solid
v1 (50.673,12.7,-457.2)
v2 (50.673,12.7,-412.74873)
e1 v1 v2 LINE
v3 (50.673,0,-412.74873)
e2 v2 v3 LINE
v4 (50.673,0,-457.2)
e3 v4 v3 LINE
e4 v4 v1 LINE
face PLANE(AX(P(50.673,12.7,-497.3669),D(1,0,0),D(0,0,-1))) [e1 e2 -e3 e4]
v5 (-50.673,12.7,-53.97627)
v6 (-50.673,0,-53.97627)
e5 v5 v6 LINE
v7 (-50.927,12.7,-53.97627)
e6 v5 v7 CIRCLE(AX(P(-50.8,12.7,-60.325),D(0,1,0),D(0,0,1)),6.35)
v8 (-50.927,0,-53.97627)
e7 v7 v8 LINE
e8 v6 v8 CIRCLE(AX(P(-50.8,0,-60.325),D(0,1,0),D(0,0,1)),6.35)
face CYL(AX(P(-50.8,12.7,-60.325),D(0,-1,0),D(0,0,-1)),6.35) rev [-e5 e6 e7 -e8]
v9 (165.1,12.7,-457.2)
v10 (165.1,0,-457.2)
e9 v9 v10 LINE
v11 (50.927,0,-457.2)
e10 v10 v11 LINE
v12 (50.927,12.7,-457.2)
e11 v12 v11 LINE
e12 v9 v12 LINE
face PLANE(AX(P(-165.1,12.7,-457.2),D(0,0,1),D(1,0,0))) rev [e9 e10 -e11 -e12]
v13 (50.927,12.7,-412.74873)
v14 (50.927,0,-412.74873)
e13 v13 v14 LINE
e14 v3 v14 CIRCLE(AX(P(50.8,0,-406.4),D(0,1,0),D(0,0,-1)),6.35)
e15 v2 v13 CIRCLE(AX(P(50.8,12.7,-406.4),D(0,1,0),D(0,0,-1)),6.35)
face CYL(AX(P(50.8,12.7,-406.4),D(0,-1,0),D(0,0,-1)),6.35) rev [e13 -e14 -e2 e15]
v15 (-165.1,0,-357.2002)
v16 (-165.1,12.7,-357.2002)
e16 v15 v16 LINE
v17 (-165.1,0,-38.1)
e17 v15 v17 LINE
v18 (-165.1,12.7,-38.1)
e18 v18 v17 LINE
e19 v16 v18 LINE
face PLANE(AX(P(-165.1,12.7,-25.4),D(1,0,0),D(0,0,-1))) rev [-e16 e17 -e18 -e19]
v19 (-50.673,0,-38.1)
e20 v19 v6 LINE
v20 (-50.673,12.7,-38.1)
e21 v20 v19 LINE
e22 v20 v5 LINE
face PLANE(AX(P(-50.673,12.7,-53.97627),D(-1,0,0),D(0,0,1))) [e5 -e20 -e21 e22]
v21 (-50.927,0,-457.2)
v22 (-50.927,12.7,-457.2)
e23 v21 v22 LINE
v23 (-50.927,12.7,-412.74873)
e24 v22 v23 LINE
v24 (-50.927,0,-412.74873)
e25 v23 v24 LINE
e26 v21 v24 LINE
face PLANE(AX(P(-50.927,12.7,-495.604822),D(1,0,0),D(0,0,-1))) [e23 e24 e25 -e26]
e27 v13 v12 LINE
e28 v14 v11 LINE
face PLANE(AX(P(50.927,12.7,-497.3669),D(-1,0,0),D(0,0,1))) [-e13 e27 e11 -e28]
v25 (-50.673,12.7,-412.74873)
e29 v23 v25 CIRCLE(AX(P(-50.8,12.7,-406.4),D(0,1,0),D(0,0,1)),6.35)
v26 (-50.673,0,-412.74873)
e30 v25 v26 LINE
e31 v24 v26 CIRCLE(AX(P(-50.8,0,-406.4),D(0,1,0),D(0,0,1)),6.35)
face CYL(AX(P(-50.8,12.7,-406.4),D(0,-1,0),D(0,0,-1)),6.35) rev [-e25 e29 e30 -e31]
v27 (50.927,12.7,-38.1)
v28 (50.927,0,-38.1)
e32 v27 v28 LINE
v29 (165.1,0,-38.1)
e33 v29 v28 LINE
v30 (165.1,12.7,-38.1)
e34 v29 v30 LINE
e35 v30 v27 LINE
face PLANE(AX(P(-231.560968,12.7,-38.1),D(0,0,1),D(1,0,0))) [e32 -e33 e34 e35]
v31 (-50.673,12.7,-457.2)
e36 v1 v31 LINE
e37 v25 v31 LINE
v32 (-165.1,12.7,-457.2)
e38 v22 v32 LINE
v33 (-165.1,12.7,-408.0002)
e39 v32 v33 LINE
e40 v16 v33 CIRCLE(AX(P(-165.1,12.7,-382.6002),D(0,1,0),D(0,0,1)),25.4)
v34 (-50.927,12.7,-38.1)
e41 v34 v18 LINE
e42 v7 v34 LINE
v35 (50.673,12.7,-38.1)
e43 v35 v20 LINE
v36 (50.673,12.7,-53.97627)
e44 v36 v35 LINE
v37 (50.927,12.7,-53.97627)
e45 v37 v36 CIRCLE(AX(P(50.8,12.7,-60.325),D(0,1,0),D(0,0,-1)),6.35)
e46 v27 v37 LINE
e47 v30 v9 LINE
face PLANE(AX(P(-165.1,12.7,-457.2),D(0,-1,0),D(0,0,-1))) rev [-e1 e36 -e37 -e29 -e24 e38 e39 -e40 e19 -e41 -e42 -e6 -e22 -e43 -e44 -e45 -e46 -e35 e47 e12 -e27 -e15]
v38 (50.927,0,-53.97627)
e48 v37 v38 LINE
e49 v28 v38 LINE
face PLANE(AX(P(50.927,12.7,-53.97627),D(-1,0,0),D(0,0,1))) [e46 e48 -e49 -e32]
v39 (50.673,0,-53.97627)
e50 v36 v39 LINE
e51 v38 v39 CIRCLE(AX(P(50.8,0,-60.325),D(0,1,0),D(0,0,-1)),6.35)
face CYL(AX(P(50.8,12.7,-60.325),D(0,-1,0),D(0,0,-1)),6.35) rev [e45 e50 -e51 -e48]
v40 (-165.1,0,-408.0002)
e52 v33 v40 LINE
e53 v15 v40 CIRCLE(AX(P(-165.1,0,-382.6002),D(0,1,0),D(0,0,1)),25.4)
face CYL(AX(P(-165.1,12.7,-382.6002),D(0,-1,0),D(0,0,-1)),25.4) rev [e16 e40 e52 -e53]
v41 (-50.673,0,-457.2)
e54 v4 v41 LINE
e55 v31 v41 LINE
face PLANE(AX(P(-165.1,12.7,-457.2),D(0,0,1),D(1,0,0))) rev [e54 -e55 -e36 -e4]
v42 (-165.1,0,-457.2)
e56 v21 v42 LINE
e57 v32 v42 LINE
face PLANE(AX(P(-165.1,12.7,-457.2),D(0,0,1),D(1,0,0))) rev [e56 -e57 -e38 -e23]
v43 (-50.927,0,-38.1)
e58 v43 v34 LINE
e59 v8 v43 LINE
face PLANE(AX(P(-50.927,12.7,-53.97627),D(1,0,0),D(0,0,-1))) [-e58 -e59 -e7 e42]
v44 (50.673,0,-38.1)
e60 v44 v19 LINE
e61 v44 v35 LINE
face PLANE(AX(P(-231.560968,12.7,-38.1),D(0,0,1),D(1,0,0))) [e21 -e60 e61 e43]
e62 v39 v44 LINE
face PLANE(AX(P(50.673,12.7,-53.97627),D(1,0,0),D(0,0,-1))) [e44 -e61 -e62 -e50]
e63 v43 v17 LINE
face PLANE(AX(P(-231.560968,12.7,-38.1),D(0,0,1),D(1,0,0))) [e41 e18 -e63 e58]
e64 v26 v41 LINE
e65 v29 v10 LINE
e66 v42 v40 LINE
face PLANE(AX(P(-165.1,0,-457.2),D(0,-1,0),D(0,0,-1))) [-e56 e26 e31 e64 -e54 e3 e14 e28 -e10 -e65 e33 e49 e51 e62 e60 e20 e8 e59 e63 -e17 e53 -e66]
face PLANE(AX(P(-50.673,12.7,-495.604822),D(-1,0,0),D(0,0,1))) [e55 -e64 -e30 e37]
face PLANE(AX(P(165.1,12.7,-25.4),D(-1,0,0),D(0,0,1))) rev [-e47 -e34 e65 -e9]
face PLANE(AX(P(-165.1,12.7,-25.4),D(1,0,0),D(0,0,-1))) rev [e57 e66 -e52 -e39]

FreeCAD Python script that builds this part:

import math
import FreeCAD as App
import Part
import Sketcher

V = App.Vector
Q = App.Units.Quantity

doc = App.newDocument("Part")
body = doc.addObject("PartDesign::Body", "Body")

sketch1 = doc.addObject("Sketcher::SketchObject", "Sketch")
body.addObject(sketch1)
sketch1.AttachmentSupport = (doc.XZ_Plane, [""])
sketch1.MapMode = "FlatFace"
sketch1.addGeometry([
    Part.LineSegment(V(-165.1, -457.2, 0), V(-165.1, -25.4, 0)),
    Part.LineSegment(V(-165.1, -25.4, 0), V(165.1, -25.4, 0)),
    Part.LineSegment(V(165.1, -25.4, 0), V(165.1, -457.2, 0)),
    Part.LineSegment(V(165.1, -457.2, 0), V(-165.1, -457.2, 0)),
], False)
sketch1.addConstraint([
    Sketcher.Constraint("Coincident", 0, 2, 1, 1),
    Sketcher.Constraint("Coincident", 1, 2, 2, 1),
    Sketcher.Constraint("Coincident", 2, 2, 3, 1),
    Sketcher.Constraint("Coincident", 3, 2, 0, 1),
    Sketcher.Constraint("Vertical", 0),
    Sketcher.Constraint("Horizontal", 1),
    Sketcher.Constraint("Vertical", 2),
    Sketcher.Constraint("Horizontal", 3),
    Sketcher.Constraint("DistanceX", 1, 1, 1, 2, Q("13 in")),
    Sketcher.Constraint("DistanceY", 0, 1, 0, 2, Q("17 in")),
    Sketcher.Constraint("DistanceY", 0, 2, -1, 1, Q("1 in")),
    Sketcher.Constraint("DistanceX", 0, 2, -1, 1, Q("6.5 in")),
])
pad1 = doc.addObject("PartDesign::Pad", "Pad")
body.addObject(pad1)
pad1.Profile = sketch1
pad1.Length = Q("0.5 in")
pad1.Reversed = True

sketch2 = doc.addObject("Sketcher::SketchObject", "Sketch001")
body.addObject(sketch2)
sketch2.AttachmentSupport = (doc.XZ_Plane, [""])
sketch2.MapMode = "FlatFace"
sketch2.addGeometry([
    Part.LineSegment(V(-231.560968, -38.1, 0), V(-231.560968, 48.635895, 0)),
    Part.LineSegment(V(-231.560968, 48.635895, 0), V(231.560968, 48.635895, 0)),
    Part.LineSegment(V(231.560968, 48.635895, 0), V(231.560968, -38.1, 0)),
    Part.LineSegment(V(231.560968, -38.1, 0), V(-231.560968, -38.1, 0)),
], False)
sketch2.addConstraint([
    Sketcher.Constraint("Coincident", 0, 2, 1, 1),
    Sketcher.Constraint("Coincident", 1, 2, 2, 1),
    Sketcher.Constraint("Coincident", 2, 2, 3, 1),
    Sketcher.Constraint("Coincident", 3, 2, 0, 1),
    Sketcher.Constraint("Vertical", 0),
    Sketcher.Constraint("Horizontal", 1),
    Sketcher.Constraint("Vertical", 2),
    Sketcher.Constraint("Horizontal", 3),
    Sketcher.Constraint("DistanceY", 2, 2, -1, 1, Q("1.5 in")),
    Sketcher.Constraint("DistanceX", 1, 1, 1, 2, 463.121935),
    Sketcher.Constraint("DistanceY", 0, 1, 0, 2, 86.735895),
    Sketcher.Constraint("DistanceX", 0, 2, -1, 1, 231.560968),
])
pocket1 = doc.addObject("PartDesign::Pocket", "Pocket")
body.addObject(pocket1)
pocket1.Profile = sketch2
pocket1.Type = "ThroughAll"

sketch3 = doc.addObject("Sketcher::SketchObject", "Sketch002")
body.addObject(sketch3)
sketch3.AttachmentSupport = (doc.XZ_Plane, [""])
sketch3.MapMode = "FlatFace"
sketch3.addGeometry(Part.Circle(V(-165.1, -382.6002, 0), V(0, 0, 1), 25.4), False)
sketch3.addConstraint([
    Sketcher.Constraint("Diameter", 0, Q("2 in")),
    Sketcher.Constraint("DistanceX", 0, 3, -1, 1, Q("6.5 in")),
    Sketcher.Constraint("DistanceY", 0, 3, -1, 1, Q("15.063 in")),
])
pocket2 = doc.addObject("PartDesign::Pocket", "Pocket001")
body.addObject(pocket2)
pocket2.Profile = sketch3
pocket2.Type = "ThroughAll"

sketch4 = doc.addObject("Sketcher::SketchObject", "Sketch003")
body.addObject(sketch4)
sketch4.AttachmentSupport = (doc.XZ_Plane, [""])
sketch4.MapMode = "FlatFace"
sketch4.addGeometry([
    Part.LineSegment(V(-50.673, -495.604822, 0), V(-50.927, -495.604822, 0)),
    Part.LineSegment(V(-50.927, -495.604822, 0), V(-50.927, -412.74873, 0)),
    Part.ArcOfCircle(Part.Circle(V(-50.8, -406.4, 0), V(0, 0, 1), 6.35), math.radians(-88.854008), math.radians(268.854008)),
    Part.LineSegment(V(-50.673, -412.74873, 0), V(-50.673, -495.604822, 0)),
    Part.LineSegment(V(50.927, -497.3669, 0), V(50.673, -497.3669, 0)),
    Part.LineSegment(V(50.673, -497.3669, 0), V(50.673, -412.74873, 0)),
    Part.ArcOfCircle(Part.Circle(V(50.8, -406.4, 0), V(0, 0, 1), 6.35), math.radians(-88.854008), math.radians(268.854008)),
    Part.LineSegment(V(50.927, -412.74873, 0), V(50.927, -497.3669, 0)),
    Part.LineSegment(V(-50.673, -30.445781, 0), V(-50.673, -53.97627, 0)),
    Part.ArcOfCircle(Part.Circle(V(-50.8, -60.325, 0), V(0, 0, 1), 6.35), math.radians(91.145992), math.radians(448.854008)),
    Part.LineSegment(V(-50.927, -53.97627, 0), V(-50.927, -30.445781, 0)),
    Part.LineSegment(V(-50.927, -30.445781, 0), V(-50.673, -30.445781, 0)),
    Part.LineSegment(V(50.927, -31.394028, 0), V(50.927, -53.97627, 0)),
    Part.ArcOfCircle(Part.Circle(V(50.8, -60.325, 0), V(0, 0, 1), 6.35), math.radians(91.145992), math.radians(448.854008)),
    Part.LineSegment(V(50.673, -53.97627, 0), V(50.673, -31.394028, 0)),
    Part.LineSegment(V(50.673, -31.394028, 0), V(50.927, -31.394028, 0)),
], False)
sketch4.addConstraint([
    Sketcher.Constraint("Coincident", 0, 2, 1, 1),
    Sketcher.Constraint("Coincident", 1, 2, 2, 2),
    Sketcher.Constraint("Coincident", 2, 1, 3, 1),
    Sketcher.Constraint("Coincident", 3, 2, 0, 1),
    Sketcher.Constraint("Coincident", 4, 2, 5, 1),
    Sketcher.Constraint("Coincident", 5, 2, 6, 2),
    Sketcher.Constraint("Coincident", 6, 1, 7, 1),
    Sketcher.Constraint("Coincident", 7, 2, 4, 1),
    Sketcher.Constraint("Coincident", 8, 2, 9, 2),
    Sketcher.Constraint("Coincident", 9, 1, 10, 1),
    Sketcher.Constraint("Coincident", 10, 2, 11, 1),
    Sketcher.Constraint("Coincident", 11, 2, 8, 1),
    Sketcher.Constraint("Coincident", 12, 2, 13, 2),
    Sketcher.Constraint("Coincident", 13, 1, 14, 1),
    Sketcher.Constraint("Coincident", 14, 2, 15, 1),
    Sketcher.Constraint("Coincident", 15, 2, 12, 1),
    Sketcher.Constraint("Horizontal", 0),
    Sketcher.Constraint("Vertical", 1),
    Sketcher.Constraint("Vertical", 3),
    Sketcher.Constraint("Horizontal", 4),
    Sketcher.Constraint("Vertical", 5),
    Sketcher.Constraint("Vertical", 7),
    Sketcher.Constraint("Vertical", 8),
    Sketcher.Constraint("Vertical", 10),
    Sketcher.Constraint("Horizontal", 11),
    Sketcher.Constraint("Vertical", 12),
    Sketcher.Constraint("Vertical", 14),
    Sketcher.Constraint("Horizontal", 15),
    Sketcher.Constraint("Equal", 2, 6),
    Sketcher.Constraint("Equal", 6, 9),
    Sketcher.Constraint("Equal", 9, 13),
    Sketcher.Constraint("Symmetric", 2, 3, 6, 3, -2),
    Sketcher.Constraint("Symmetric", 9, 3, 13, 3, -2),
    Sketcher.Constraint("Horizontal", 1, 2, 2, 1),
    Sketcher.Constraint("Horizontal", 2, 1, 5, 2),
    Sketcher.Constraint("Horizontal", 5, 2, 6, 1),
    Sketcher.Constraint("Horizontal", 8, 2, 9, 1),
    Sketcher.Constraint("Horizontal", 9, 1, 12, 2),
    Sketcher.Constraint("Horizontal", 12, 2, 13, 1),
    Sketcher.Constraint("Vertical", 2, 3, 9, 3),
    Sketcher.Constraint("Vertical", 3, 2, 8, 2),
    Sketcher.Constraint("Radius", 2, Q("0.25 in")),
    Sketcher.Constraint("DistanceX", 2, 3, -1, 1, Q("2 in")),
    Sketcher.Constraint("DistanceY", 2, 3, -1, 1, Q("16 in")),
    Sketcher.Constraint("DistanceX", 0, 2, 0, 1, Q("0.01 in")),
    Sketcher.Constraint("DistanceY", 9, 3, -1, 1, Q("2.375 in")),
    Sketcher.Constraint("DistanceY", 5, 1, 5, 2, 84.618171),
    Sketcher.Constraint("DistanceY", 8, 2, 8, 1, 23.530489),
    Sketcher.Constraint("DistanceY", 12, 2, 12, 1, 22.582242),
    Sketcher.Constraint("DistanceY", 1, 1, 1, 2, 82.856092),
])
pocket3 = doc.addObject("PartDesign::Pocket", "Pocket002")
body.addObject(pocket3)
pocket3.Profile = sketch4
pocket3.Type = "ThroughAll"

doc.recompute()
